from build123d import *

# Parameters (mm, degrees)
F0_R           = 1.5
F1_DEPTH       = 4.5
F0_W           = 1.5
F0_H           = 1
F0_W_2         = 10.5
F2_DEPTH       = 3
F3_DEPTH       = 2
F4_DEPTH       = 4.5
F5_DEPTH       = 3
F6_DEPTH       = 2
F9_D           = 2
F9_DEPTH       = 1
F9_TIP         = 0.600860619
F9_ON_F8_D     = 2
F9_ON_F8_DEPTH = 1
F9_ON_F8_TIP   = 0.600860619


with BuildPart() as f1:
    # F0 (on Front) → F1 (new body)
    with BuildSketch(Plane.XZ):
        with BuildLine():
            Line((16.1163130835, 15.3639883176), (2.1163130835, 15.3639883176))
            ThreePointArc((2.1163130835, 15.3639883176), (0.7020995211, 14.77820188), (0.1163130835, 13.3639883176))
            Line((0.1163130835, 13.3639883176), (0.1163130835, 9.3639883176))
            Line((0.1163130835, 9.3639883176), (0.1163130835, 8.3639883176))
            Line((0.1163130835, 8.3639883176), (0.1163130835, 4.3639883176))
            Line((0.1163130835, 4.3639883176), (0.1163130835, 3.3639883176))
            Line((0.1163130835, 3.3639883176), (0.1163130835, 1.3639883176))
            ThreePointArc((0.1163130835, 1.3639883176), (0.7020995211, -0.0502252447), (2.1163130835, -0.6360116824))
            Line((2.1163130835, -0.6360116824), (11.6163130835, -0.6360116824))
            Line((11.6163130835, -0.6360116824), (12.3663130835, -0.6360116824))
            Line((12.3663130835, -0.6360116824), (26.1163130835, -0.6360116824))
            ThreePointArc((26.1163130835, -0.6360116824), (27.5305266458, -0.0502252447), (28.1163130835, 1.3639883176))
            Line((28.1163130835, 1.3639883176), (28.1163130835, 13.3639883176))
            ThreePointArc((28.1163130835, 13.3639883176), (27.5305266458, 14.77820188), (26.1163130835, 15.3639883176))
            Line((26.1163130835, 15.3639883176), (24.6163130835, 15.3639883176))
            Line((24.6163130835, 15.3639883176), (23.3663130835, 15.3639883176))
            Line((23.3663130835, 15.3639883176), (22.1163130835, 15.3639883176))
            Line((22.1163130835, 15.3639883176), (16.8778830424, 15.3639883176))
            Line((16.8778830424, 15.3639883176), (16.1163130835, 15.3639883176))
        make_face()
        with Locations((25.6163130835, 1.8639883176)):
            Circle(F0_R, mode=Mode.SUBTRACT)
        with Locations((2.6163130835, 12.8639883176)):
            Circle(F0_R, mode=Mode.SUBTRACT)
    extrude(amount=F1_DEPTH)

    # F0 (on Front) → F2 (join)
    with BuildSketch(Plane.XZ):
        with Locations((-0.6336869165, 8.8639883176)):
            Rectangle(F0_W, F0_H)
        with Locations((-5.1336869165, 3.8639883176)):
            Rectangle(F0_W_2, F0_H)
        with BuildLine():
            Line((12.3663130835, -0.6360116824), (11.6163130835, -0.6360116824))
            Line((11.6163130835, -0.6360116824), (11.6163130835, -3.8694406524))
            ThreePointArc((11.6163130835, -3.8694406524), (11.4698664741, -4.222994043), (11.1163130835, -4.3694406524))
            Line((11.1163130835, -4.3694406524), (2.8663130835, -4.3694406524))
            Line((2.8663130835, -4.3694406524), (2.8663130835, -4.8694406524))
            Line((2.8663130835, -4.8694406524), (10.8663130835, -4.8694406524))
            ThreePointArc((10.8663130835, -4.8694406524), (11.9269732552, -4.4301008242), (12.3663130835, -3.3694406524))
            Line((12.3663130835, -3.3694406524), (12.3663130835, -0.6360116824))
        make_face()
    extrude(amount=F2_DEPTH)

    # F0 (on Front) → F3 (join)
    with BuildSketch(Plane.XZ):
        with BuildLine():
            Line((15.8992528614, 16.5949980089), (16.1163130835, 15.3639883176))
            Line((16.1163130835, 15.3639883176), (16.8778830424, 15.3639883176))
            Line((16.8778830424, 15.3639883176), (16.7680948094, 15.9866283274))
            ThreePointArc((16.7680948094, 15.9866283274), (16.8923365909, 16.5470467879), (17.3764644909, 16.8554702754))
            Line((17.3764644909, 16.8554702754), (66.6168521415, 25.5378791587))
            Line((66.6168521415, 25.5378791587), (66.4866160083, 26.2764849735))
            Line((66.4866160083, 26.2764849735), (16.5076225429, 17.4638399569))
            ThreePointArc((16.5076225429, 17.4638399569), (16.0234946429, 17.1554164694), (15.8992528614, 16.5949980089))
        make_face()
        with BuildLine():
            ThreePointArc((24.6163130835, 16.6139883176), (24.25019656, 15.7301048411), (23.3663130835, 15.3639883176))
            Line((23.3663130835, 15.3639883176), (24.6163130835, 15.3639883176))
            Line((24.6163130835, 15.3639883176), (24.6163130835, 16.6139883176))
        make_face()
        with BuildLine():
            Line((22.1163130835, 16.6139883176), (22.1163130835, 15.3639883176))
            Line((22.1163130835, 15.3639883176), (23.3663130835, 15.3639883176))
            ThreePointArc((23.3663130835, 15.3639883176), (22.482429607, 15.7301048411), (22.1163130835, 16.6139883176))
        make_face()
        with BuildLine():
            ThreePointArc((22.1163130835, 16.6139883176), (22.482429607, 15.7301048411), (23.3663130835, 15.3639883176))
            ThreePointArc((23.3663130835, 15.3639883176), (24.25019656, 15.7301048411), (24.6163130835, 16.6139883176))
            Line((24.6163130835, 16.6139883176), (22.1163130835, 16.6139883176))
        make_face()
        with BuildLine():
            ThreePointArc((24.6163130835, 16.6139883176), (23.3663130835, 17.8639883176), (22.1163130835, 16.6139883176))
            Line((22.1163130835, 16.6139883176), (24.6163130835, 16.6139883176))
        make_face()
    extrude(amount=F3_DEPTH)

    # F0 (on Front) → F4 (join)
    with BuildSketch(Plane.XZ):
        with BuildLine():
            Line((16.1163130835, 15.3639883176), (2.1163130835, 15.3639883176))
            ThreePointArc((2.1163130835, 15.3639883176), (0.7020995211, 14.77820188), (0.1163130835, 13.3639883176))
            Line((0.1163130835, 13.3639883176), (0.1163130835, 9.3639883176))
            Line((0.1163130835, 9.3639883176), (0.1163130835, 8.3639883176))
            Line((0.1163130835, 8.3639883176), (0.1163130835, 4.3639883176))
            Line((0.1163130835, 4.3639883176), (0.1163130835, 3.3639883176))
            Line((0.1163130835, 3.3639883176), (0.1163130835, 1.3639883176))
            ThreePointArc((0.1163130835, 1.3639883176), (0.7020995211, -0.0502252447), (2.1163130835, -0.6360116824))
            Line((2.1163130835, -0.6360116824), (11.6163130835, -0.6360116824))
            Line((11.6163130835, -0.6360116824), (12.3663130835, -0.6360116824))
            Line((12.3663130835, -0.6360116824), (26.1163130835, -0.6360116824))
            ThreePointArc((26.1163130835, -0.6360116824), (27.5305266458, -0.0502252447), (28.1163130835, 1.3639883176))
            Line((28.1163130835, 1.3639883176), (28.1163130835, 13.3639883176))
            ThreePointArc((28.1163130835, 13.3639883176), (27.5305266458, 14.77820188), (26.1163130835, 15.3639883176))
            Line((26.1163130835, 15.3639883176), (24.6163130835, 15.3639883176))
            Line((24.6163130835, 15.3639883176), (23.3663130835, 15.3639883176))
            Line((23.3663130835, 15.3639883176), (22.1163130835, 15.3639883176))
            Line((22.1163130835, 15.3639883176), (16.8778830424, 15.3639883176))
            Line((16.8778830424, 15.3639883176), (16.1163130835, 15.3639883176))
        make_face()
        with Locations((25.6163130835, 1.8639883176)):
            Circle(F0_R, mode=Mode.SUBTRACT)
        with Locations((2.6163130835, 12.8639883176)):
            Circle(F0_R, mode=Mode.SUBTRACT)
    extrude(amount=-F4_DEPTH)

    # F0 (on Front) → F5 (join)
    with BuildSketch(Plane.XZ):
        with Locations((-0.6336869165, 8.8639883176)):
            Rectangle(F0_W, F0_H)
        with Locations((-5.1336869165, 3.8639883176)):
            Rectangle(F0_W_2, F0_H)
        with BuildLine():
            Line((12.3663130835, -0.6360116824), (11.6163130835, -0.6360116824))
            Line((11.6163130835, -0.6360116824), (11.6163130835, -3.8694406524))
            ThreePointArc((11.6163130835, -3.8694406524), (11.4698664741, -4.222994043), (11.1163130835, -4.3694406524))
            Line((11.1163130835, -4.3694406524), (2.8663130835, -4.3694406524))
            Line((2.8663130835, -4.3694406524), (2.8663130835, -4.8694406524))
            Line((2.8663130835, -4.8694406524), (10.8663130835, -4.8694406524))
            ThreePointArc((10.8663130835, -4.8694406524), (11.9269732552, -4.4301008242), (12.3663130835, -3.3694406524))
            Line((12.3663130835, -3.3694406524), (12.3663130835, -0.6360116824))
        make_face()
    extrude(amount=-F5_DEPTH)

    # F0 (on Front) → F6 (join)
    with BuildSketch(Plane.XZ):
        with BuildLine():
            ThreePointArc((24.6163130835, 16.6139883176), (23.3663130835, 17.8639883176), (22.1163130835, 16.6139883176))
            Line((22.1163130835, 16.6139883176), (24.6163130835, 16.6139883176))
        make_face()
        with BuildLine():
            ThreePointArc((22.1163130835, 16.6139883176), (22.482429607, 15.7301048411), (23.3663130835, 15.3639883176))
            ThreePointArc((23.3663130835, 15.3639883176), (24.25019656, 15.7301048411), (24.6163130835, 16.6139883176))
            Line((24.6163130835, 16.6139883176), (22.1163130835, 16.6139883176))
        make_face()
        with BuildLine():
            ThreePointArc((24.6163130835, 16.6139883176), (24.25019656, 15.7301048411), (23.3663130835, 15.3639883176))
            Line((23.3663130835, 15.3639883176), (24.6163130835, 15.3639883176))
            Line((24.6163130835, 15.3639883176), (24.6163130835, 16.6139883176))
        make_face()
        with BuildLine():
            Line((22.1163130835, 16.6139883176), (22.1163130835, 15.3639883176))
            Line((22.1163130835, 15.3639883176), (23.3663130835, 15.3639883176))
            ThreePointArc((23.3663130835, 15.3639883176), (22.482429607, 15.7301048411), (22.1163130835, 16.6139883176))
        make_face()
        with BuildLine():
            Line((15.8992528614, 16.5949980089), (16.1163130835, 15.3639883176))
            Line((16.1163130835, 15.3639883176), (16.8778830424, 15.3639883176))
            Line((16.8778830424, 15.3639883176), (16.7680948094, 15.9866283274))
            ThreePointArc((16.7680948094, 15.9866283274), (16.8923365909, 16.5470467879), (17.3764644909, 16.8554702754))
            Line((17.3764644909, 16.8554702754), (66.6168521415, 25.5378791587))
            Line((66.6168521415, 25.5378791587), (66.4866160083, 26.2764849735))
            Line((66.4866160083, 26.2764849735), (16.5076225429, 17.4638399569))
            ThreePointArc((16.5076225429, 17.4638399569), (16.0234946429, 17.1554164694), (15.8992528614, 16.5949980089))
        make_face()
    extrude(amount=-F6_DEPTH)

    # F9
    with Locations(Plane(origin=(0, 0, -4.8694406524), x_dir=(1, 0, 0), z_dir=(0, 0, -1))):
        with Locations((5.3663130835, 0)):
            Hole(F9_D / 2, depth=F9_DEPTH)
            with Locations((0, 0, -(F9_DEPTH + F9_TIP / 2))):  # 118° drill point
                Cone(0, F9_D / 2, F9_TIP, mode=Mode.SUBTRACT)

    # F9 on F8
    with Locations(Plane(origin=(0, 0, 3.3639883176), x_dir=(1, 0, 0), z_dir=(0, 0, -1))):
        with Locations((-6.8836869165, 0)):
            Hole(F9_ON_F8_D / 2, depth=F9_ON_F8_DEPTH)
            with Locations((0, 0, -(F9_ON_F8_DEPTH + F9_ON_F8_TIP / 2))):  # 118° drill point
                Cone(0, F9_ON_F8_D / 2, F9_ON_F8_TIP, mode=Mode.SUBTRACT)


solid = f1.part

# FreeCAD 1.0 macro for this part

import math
import FreeCAD as App
import Part
import Sketcher
from FreeCAD import Vector
Q = App.Units.Quantity

doc = App.newDocument("Part")
body = doc.addObject("PartDesign::Body", "Body")

# Sketch on XZ plane
sketch1 = body.newObject("Sketcher::SketchObject", "Sketch")
sketch1.AttachmentSupport = (doc.getObject("XZ_Plane"), [""])
sketch1.MapMode = "FlatFace"
sketch1.addGeometry(Part.ArcOfCircle(Part.Circle(Vector(2.116313, 13.363988, 0), Vector(0, 0, 1), 2), math.radians(90), math.radians(180)), False)
sketch1.addGeometry(Part.LineSegment(Vector(0.116313, 13.363988, 0), Vector(0.116313, 1.363988, 0)), False)
sketch1.addGeometry(Part.ArcOfCircle(Part.Circle(Vector(2.116313, 1.363988, 0), Vector(0, 0, 1), 2), math.radians(180), math.radians(270)), False)
sketch1.addGeometry(Part.LineSegment(Vector(2.116313, -0.636012, 0), Vector(26.116313, -0.636012, 0)), False)
sketch1.addGeometry(Part.ArcOfCircle(Part.Circle(Vector(26.116313, 1.363988, 0), Vector(0, 0, 1), 2), math.radians(-90), math.radians(0)), False)
sketch1.addGeometry(Part.LineSegment(Vector(28.116313, 1.363988, 0), Vector(28.116313, 13.363988, 0)), False)
sketch1.addGeometry(Part.ArcOfCircle(Part.Circle(Vector(26.116313, 13.363988, 0), Vector(0, 0, 1), 2), math.radians(0), math.radians(90)), False)
sketch1.addGeometry(Part.LineSegment(Vector(26.116313, 15.363988, 0), Vector(2.116313, 15.363988, 0)), False)
sketch1.addGeometry(Part.Circle(Vector(25.616313, 1.863988, 0), Vector(0, 0, 1), 1.5), False)
sketch1.addGeometry(Part.Circle(Vector(2.616313, 12.863988, 0), Vector(0, 0, 1), 1.5), False)
sketch1.addConstraint(Sketcher.Constraint("Tangent", 0, 2, 1, 1))
sketch1.addConstraint(Sketcher.Constraint("Tangent", 1, 2, 2, 1))
sketch1.addConstraint(Sketcher.Constraint("Tangent", 2, 2, 3, 1))
sketch1.addConstraint(Sketcher.Constraint("Tangent", 3, 2, 4, 1))
sketch1.addConstraint(Sketcher.Constraint("Tangent", 4, 2, 5, 1))
sketch1.addConstraint(Sketcher.Constraint("Tangent", 5, 2, 6, 1))
sketch1.addConstraint(Sketcher.Constraint("Tangent", 6, 2, 7, 1))
sketch1.addConstraint(Sketcher.Constraint("Tangent", 7, 2, 0, 1))
sketch1.addConstraint(Sketcher.Constraint("Vertical", 1))
sketch1.addConstraint(Sketcher.Constraint("Horizontal", 3))
sketch1.addConstraint(Sketcher.Constraint("Vertical", 5))
sketch1.addConstraint(Sketcher.Constraint("Horizontal", 7))
sketch1.addConstraint(Sketcher.Constraint("Equal", 0, 2))
sketch1.addConstraint(Sketcher.Constraint("Equal", 2, 4))
sketch1.addConstraint(Sketcher.Constraint("Equal", 4, 6))
sketch1.addConstraint(Sketcher.Constraint("Equal", 8, 9))
sketch1.addConstraint(Sketcher.Constraint("Diameter", 8, 3.0))
sketch1.addConstraint(Sketcher.Constraint("Radius", 0, 2.0))
sketch1.addConstraint(Sketcher.Constraint("DistanceX", 3, 1, 3, 2, 24.0))
sketch1.addConstraint(Sketcher.Constraint("DistanceY", 1, 2, 1, 1, 12.0))
sketch1.addConstraint(Sketcher.Constraint("DistanceX", 9, 3, 8, 3, 23.0))
sketch1.addConstraint(Sketcher.Constraint("DistanceY", 8, 3, 9, 3, 11.0))
sketch1.addConstraint(Sketcher.Constraint("DistanceX", 8, 3, 4, 3, 0.5))
sketch1.addConstraint(Sketcher.Constraint("DistanceY", 4, 3, 8, 3, 0.5))
sketch1.addConstraint(Sketcher.Constraint("DistanceY", -1, 1, 0, 3, 13.363988))
sketch1.addConstraint(Sketcher.Constraint("DistanceX", -1, 1, 0, 3, 2.116313))
pad1 = body.newObject("PartDesign::Pad", "Pad")
pad1.Profile = sketch1
pad1.Length = 4.5

# Sketch on XZ plane
sketch2 = body.newObject("Sketcher::SketchObject", "Sketch001")
sketch2.AttachmentSupport = (doc.getObject("XZ_Plane"), [""])
sketch2.MapMode = "FlatFace"
sketch2.addGeometry(Part.LineSegment(Vector(-1.383687, 9.363988, 0), Vector(-1.383687, 8.363988, 0)), False)
sketch2.addGeometry(Part.LineSegment(Vector(-1.383687, 8.363988, 0), Vector(0.116313, 8.363988, 0)), False)
sketch2.addGeometry(Part.LineSegment(Vector(0.116313, 8.363988, 0), Vector(0.116313, 9.363988, 0)), False)
sketch2.addGeometry(Part.LineSegment(Vector(0.116313, 9.363988, 0), Vector(-1.383687, 9.363988, 0)), False)
sketch2.addGeometry(Part.LineSegment(Vector(-10.383687, 4.363988, 0), Vector(-10.383687, 3.363988, 0)), False)
sketch2.addGeometry(Part.LineSegment(Vector(-10.383687, 3.363988, 0), Vector(0.116313, 3.363988, 0)), False)
sketch2.addGeometry(Part.LineSegment(Vector(0.116313, 3.363988, 0), Vector(0.116313, 4.363988, 0)), False)
sketch2.addGeometry(Part.LineSegment(Vector(0.116313, 4.363988, 0), Vector(-10.383687, 4.363988, 0)), False)
sketch2.addGeometry(Part.LineSegment(Vector(12.366313, -0.636012, 0), Vector(11.616313, -0.636012, 0)), False)
sketch2.addGeometry(Part.LineSegment(Vector(11.616313, -0.636012, 0), Vector(11.616313, -3.869441, 0)), False)
sketch2.addGeometry(Part.ArcOfCircle(Part.Circle(Vector(11.116313, -3.869441, 0), Vector(0, 0, 1), 0.5), math.radians(-90), math.radians(0)), False)
sketch2.addGeometry(Part.LineSegment(Vector(11.116313, -4.369441, 0), Vector(2.866313, -4.369441, 0)), False)
sketch2.addGeometry(Part.LineSegment(Vector(2.866313, -4.369441, 0), Vector(2.866313, -4.869441, 0)), False)
sketch2.addGeometry(Part.LineSegment(Vector(2.866313, -4.869441, 0), Vector(10.866313, -4.869441, 0)), False)
sketch2.addGeometry(Part.ArcOfCircle(Part.Circle(Vector(10.866313, -3.369441, 0), Vector(0, 0, 1), 1.5), math.radians(-90), math.radians(0)), False)
sketch2.addGeometry(Part.LineSegment(Vector(12.366313, -3.369441, 0), Vector(12.366313, -0.636012, 0)), False)
sketch2.addConstraint(Sketcher.Constraint("Coincident", 0, 2, 1, 1))
sketch2.addConstraint(Sketcher.Constraint("Coincident", 1, 2, 2, 1))
sketch2.addConstraint(Sketcher.Constraint("Coincident", 2, 2, 3, 1))
sketch2.addConstraint(Sketcher.Constraint("Coincident", 3, 2, 0, 1))
sketch2.addConstraint(Sketcher.Constraint("Coincident", 4, 2, 5, 1))
sketch2.addConstraint(Sketcher.Constraint("Coincident", 5, 2, 6, 1))
sketch2.addConstraint(Sketcher.Constraint("Coincident", 6, 2, 7, 1))
sketch2.addConstraint(Sketcher.Constraint("Coincident", 7, 2, 4, 1))
sketch2.addConstraint(Sketcher.Constraint("Coincident", 8, 2, 9, 1))
sketch2.addConstraint(Sketcher.Constraint("Tangent", 9, 2, 10, 2))
sketch2.addConstraint(Sketcher.Constraint("Tangent", 10, 1, 11, 1))
sketch2.addConstraint(Sketcher.Constraint("Coincident", 11, 2, 12, 1))
sketch2.addConstraint(Sketcher.Constraint("Coincident", 12, 2, 13, 1))
sketch2.addConstraint(Sketcher.Constraint("Tangent", 13, 2, 14, 1))
sketch2.addConstraint(Sketcher.Constraint("Tangent", 14, 2, 15, 1))
sketch2.addConstraint(Sketcher.Constraint("Coincident", 15, 2, 8, 1))
sketch2.addConstraint(Sketcher.Constraint("Vertical", 0))
sketch2.addConstraint(Sketcher.Constraint("Horizontal", 1))
sketch2.addConstraint(Sketcher.Constraint("Vertical", 2))
sketch2.addConstraint(Sketcher.Constraint("Horizontal", 3))
sketch2.addConstraint(Sketcher.Constraint("Vertical", 4))
sketch2.addConstraint(Sketcher.Constraint("Horizontal", 5))
sketch2.addConstraint(Sketcher.Constraint("Vertical", 6))
sketch2.addConstraint(Sketcher.Constraint("Horizontal", 7))
sketch2.addConstraint(Sketcher.Constraint("Horizontal", 8))
sketch2.addConstraint(Sketcher.Constraint("Vertical", 9))
sketch2.addConstraint(Sketcher.Constraint("Horizontal", 11))
sketch2.addConstraint(Sketcher.Constraint("Vertical", 12))
sketch2.addConstraint(Sketcher.Constraint("Horizontal", 13))
sketch2.addConstraint(Sketcher.Constraint("Vertical", 15))
sketch2.addConstraint(Sketcher.Constraint("Vertical", 2, 2, 5, 2))
sketch2.addConstraint(Sketcher.Constraint("Equal", 2, 4))
sketch2.addConstraint(Sketcher.Constraint("Radius", 10, 0.5))
sketch2.addConstraint(Sketcher.Constraint("Radius", 14, 1.5))
sketch2.addConstraint(Sketcher.Constraint("DistanceX", 13, 1, 13, 2, 8.0))
sketch2.addConstraint(Sketcher.Constraint("DistanceY", 0, 2, 0, 1, 1.0))
sketch2.addConstraint(Sketcher.Constraint("DistanceX", 1, 1, 1, 2, 1.5))
sketch2.addConstraint(Sketcher.Constraint("DistanceX", 5, 1, 5, 2, 10.5))
sketch2.addConstraint(Sketcher.Constraint("DistanceY", 12, 2, 12, 1, 0.5))
sketch2.addConstraint(Sketcher.Constraint("DistanceX", 1, 2, 10, 3, 11.0))
sketch2.addConstraint(Sketcher.Constraint("DistanceY", 4, 2, 0, 2, 5.0))
sketch2.addConstraint(Sketcher.Constraint("DistanceY", 8, 2, 5, 2, 4.0))
sketch2.addConstraint(Sketcher.Constraint("DistanceX", 8, 2, 8, 1, 0.75))
sketch2.addConstraint(Sketcher.Constraint("DistanceY", 9, 2, 9, 1, 3.233429))
sketch2.addConstraint(Sketcher.Constraint("DistanceY", 10, 3, -1, 1, 3.869441))
sketch2.addConstraint(Sketcher.Constraint("DistanceX", -1, 1, 10, 3, 11.116313))
pad2 = body.newObject("PartDesign::Pad", "Pad001")
pad2.Profile = sketch2
pad2.Length = 3

# Sketch on XZ plane
sketch3 = body.newObject("Sketcher::SketchObject", "Sketch002")
sketch3.AttachmentSupport = (doc.getObject("XZ_Plane"), [""])
sketch3.MapMode = "FlatFace"
sketch3.addGeometry(Part.LineSegment(Vector(15.899253, 16.594998, 0), Vector(16.116313, 15.363988, 0)), False)
sketch3.addGeometry(Part.LineSegment(Vector(16.116313, 15.363988, 0), Vector(16.877883, 15.363988, 0)), False)
sketch3.addGeometry(Part.LineSegment(Vector(16.877883, 15.363988, 0), Vector(16.768095, 15.986628, 0)), False)
sketch3.addGeometry(Part.ArcOfCircle(Part.Circle(Vector(17.506701, 16.116864, 0), Vector(0, 0, 1), 0.75), math.radians(100), math.radians(190)), False)
sketch3.addGeometry(Part.LineSegment(Vector(17.376464, 16.85547, 0), Vector(66.616852, 25.537879, 0)), False)
sketch3.addGeometry(Part.LineSegment(Vector(66.616852, 25.537879, 0), Vector(66.486616, 26.276485, 0)), False)
sketch3.addGeometry(Part.LineSegment(Vector(66.486616, 26.276485, 0), Vector(16.507623, 17.46384, 0)), False)
sketch3.addGeometry(Part.ArcOfCircle(Part.Circle(Vector(16.637859, 16.725234, 0), Vector(0, 0, 1), 0.75), math.radians(100), math.radians(190)), False)
sketch3.addGeometry(Part.LineSegment(Vector(24.616313, 15.363988, 0), Vector(24.616313, 16.613988, 0)), False)
sketch3.addGeometry(Part.ArcOfCircle(Part.Circle(Vector(23.366313, 16.613988, 0), Vector(0, 0, 1), 1.25), math.radians(0), math.radians(180)), False)
sketch3.addGeometry(Part.LineSegment(Vector(22.116313, 16.613988, 0), Vector(22.116313, 15.363988, 0)), False)
sketch3.addGeometry(Part.LineSegment(Vector(22.116313, 15.363988, 0), Vector(24.616313, 15.363988, 0)), False)
sketch3.addConstraint(Sketcher.Constraint("Coincident", 0, 2, 1, 1))
sketch3.addConstraint(Sketcher.Constraint("Coincident", 1, 2, 2, 1))
sketch3.addConstraint(Sketcher.Constraint("Tangent", 2, 2, 3, 2))
sketch3.addConstraint(Sketcher.Constraint("Tangent", 3, 1, 4, 1))
sketch3.addConstraint(Sketcher.Constraint("Coincident", 4, 2, 5, 1))
sketch3.addConstraint(Sketcher.Constraint("Coincident", 5, 2, 6, 1))
sketch3.addConstraint(Sketcher.Constraint("Tangent", 6, 2, 7, 1))
sketch3.addConstraint(Sketcher.Constraint("Tangent", 7, 2, 0, 1))
sketch3.addConstraint(Sketcher.Constraint("Tangent", 8, 2, 9, 1))
sketch3.addConstraint(Sketcher.Constraint("Tangent", 9, 2, 10, 1))
sketch3.addConstraint(Sketcher.Constraint("Coincident", 10, 2, 11, 1))
sketch3.addConstraint(Sketcher.Constraint("Coincident", 11, 2, 8, 1))
sketch3.addConstraint(Sketcher.Constraint("Horizontal", 1))
sketch3.addConstraint(Sketcher.Constraint("Vertical", 8))
sketch3.addConstraint(Sketcher.Constraint("Vertical", 10))
sketch3.addConstraint(Sketcher.Constraint("Horizontal", 11))
sketch3.addConstraint(Sketcher.Constraint("Equal", 3, 7))
sketch3.addConstraint(Sketcher.Constraint("Parallel", 0, 2))
sketch3.addConstraint(Sketcher.Constraint("Perpendicular", 2, 4))
sketch3.addConstraint(Sketcher.Constraint("Perpendicular", 4, 5))
sketch3.addConstraint(Sketcher.Constraint("Perpendicular", 5, 6))
sketch3.addConstraint(Sketcher.Constraint("Horizontal", 1, 2, 10, 2))
sketch3.addConstraint(Sketcher.Constraint("Angle", 0, Q("-80 deg")))
sketch3.addConstraint(Sketcher.Constraint("Radius", 3, 0.75))
sketch3.addConstraint(Sketcher.Constraint("Radius", 9, 1.25))
sketch3.addConstraint(Sketcher.Constraint("Distance", 4, 50.0))
sketch3.addConstraint(Sketcher.Constraint("DistanceY", 8, 1, 8, 2, 1.25))
sketch3.addConstraint(Sketcher.Constraint("Distance", 0, 1.25))
sketch3.addConstraint(Sketcher.Constraint("Distance", 5, 0.75))
sketch3.addConstraint(Sketcher.Constraint("Distance", 6, 50.75))
sketch3.addConstraint(Sketcher.Constraint("DistanceX", 0, 2, 9, 3, 7.25))
sketch3.addConstraint(Sketcher.Constraint("DistanceY", -1, 1, 7, 2, 16.594998))
sketch3.addConstraint(Sketcher.Constraint("DistanceX", -1, 1, 3, 3, 17.506701))
pad3 = body.newObject("PartDesign::Pad", "Pad002")
pad3.Profile = sketch3
pad3.Length = 2

# Sketch on XZ plane
sketch4 = body.newObject("Sketcher::SketchObject", "Sketch003")
sketch4.AttachmentSupport = (doc.getObject("XZ_Plane"), [""])
sketch4.MapMode = "FlatFace"
sketch4.addGeometry(Part.ArcOfCircle(Part.Circle(Vector(2.116313, 13.363988, 0), Vector(0, 0, 1), 2), math.radians(90), math.radians(180)), False)
sketch4.addGeometry(Part.LineSegment(Vector(0.116313, 13.363988, 0), Vector(0.116313, 1.363988, 0)), False)
sketch4.addGeometry(Part.ArcOfCircle(Part.Circle(Vector(2.116313, 1.363988, 0), Vector(0, 0, 1), 2), math.radians(180), math.radians(270)), False)
sketch4.addGeometry(Part.LineSegment(Vector(2.116313, -0.636012, 0), Vector(26.116313, -0.636012, 0)), False)
sketch4.addGeometry(Part.ArcOfCircle(Part.Circle(Vector(26.116313, 1.363988, 0), Vector(0, 0, 1), 2), math.radians(-90), math.radians(0)), False)
sketch4.addGeometry(Part.LineSegment(Vector(28.116313, 1.363988, 0), Vector(28.116313, 13.363988, 0)), False)
sketch4.addGeometry(Part.ArcOfCircle(Part.Circle(Vector(26.116313, 13.363988, 0), Vector(0, 0, 1), 2), math.radians(0), math.radians(90)), False)
sketch4.addGeometry(Part.LineSegment(Vector(26.116313, 15.363988, 0), Vector(2.116313, 15.363988, 0)), False)
sketch4.addGeometry(Part.Circle(Vector(25.616313, 1.863988, 0), Vector(0, 0, 1), 1.5), False)
sketch4.addGeometry(Part.Circle(Vector(2.616313, 12.863988, 0), Vector(0, 0, 1), 1.5), False)
sketch4.addConstraint(Sketcher.Constraint("Tangent", 0, 2, 1, 1))
sketch4.addConstraint(Sketcher.Constraint("Tangent", 1, 2, 2, 1))
sketch4.addConstraint(Sketcher.Constraint("Tangent", 2, 2, 3, 1))
sketch4.addConstraint(Sketcher.Constraint("Tangent", 3, 2, 4, 1))
sketch4.addConstraint(Sketcher.Constraint("Tangent", 4, 2, 5, 1))
sketch4.addConstraint(Sketcher.Constraint("Tangent", 5, 2, 6, 1))
sketch4.addConstraint(Sketcher.Constraint("Tangent", 6, 2, 7, 1))
sketch4.addConstraint(Sketcher.Constraint("Tangent", 7, 2, 0, 1))
sketch4.addConstraint(Sketcher.Constraint("Vertical", 1))
sketch4.addConstraint(Sketcher.Constraint("Horizontal", 3))
sketch4.addConstraint(Sketcher.Constraint("Vertical", 5))
sketch4.addConstraint(Sketcher.Constraint("Horizontal", 7))
sketch4.addConstraint(Sketcher.Constraint("Equal", 0, 2))
sketch4.addConstraint(Sketcher.Constraint("Equal", 2, 4))
sketch4.addConstraint(Sketcher.Constraint("Equal", 4, 6))
sketch4.addConstraint(Sketcher.Constraint("Equal", 8, 9))
sketch4.addConstraint(Sketcher.Constraint("Diameter", 8, 3.0))
sketch4.addConstraint(Sketcher.Constraint("Radius", 0, 2.0))
sketch4.addConstraint(Sketcher.Constraint("DistanceX", 3, 1, 3, 2, 24.0))
sketch4.addConstraint(Sketcher.Constraint("DistanceY", 1, 2, 1, 1, 12.0))
sketch4.addConstraint(Sketcher.Constraint("DistanceX", 9, 3, 8, 3, 23.0))
sketch4.addConstraint(Sketcher.Constraint("DistanceY", 8, 3, 9, 3, 11.0))
sketch4.addConstraint(Sketcher.Constraint("DistanceX", 8, 3, 4, 3, 0.5))
sketch4.addConstraint(Sketcher.Constraint("DistanceY", 4, 3, 8, 3, 0.5))
sketch4.addConstraint(Sketcher.Constraint("DistanceY", -1, 1, 0, 3, 13.363988))
sketch4.addConstraint(Sketcher.Constraint("DistanceX", -1, 1, 0, 3, 2.116313))
pad4 = body.newObject("PartDesign::Pad", "Pad003")
pad4.Profile = sketch4
pad4.Length = 4.5
pad4.Reversed = True

# Sketch on XZ plane
sketch5 = body.newObject("Sketcher::SketchObject", "Sketch004")
sketch5.AttachmentSupport = (doc.getObject("XZ_Plane"), [""])
sketch5.MapMode = "FlatFace"
sketch5.addGeometry(Part.LineSegment(Vector(-1.383687, 9.363988, 0), Vector(-1.383687, 8.363988, 0)), False)
sketch5.addGeometry(Part.LineSegment(Vector(-1.383687, 8.363988, 0), Vector(0.116313, 8.363988, 0)), False)
sketch5.addGeometry(Part.LineSegment(Vector(0.116313, 8.363988, 0), Vector(0.116313, 9.363988, 0)), False)
sketch5.addGeometry(Part.LineSegment(Vector(0.116313, 9.363988, 0), Vector(-1.383687, 9.363988, 0)), False)
sketch5.addGeometry(Part.LineSegment(Vector(-10.383687, 4.363988, 0), Vector(-10.383687, 3.363988, 0)), False)
sketch5.addGeometry(Part.LineSegment(Vector(-10.383687, 3.363988, 0), Vector(0.116313, 3.363988, 0)), False)
sketch5.addGeometry(Part.LineSegment(Vector(0.116313, 3.363988, 0), Vector(0.116313, 4.363988, 0)), False)
sketch5.addGeometry(Part.LineSegment(Vector(0.116313, 4.363988, 0), Vector(-10.383687, 4.363988, 0)), False)
sketch5.addGeometry(Part.LineSegment(Vector(12.366313, -0.636012, 0), Vector(11.616313, -0.636012, 0)), False)
sketch5.addGeometry(Part.LineSegment(Vector(11.616313, -0.636012, 0), Vector(11.616313, -3.869441, 0)), False)
sketch5.addGeometry(Part.ArcOfCircle(Part.Circle(Vector(11.116313, -3.869441, 0), Vector(0, 0, 1), 0.5), math.radians(-90), math.radians(0)), False)
sketch5.addGeometry(Part.LineSegment(Vector(11.116313, -4.369441, 0), Vector(2.866313, -4.369441, 0)), False)
sketch5.addGeometry(Part.LineSegment(Vector(2.866313, -4.369441, 0), Vector(2.866313, -4.869441, 0)), False)
sketch5.addGeometry(Part.LineSegment(Vector(2.866313, -4.869441, 0), Vector(10.866313, -4.869441, 0)), False)
sketch5.addGeometry(Part.ArcOfCircle(Part.Circle(Vector(10.866313, -3.369441, 0), Vector(0, 0, 1), 1.5), math.radians(-90), math.radians(0)), False)
sketch5.addGeometry(Part.LineSegment(Vector(12.366313, -3.369441, 0), Vector(12.366313, -0.636012, 0)), False)
sketch5.addConstraint(Sketcher.Constraint("Coincident", 0, 2, 1, 1))
sketch5.addConstraint(Sketcher.Constraint("Coincident", 1, 2, 2, 1))
sketch5.addConstraint(Sketcher.Constraint("Coincident", 2, 2, 3, 1))
sketch5.addConstraint(Sketcher.Constraint("Coincident", 3, 2, 0, 1))
sketch5.addConstraint(Sketcher.Constraint("Coincident", 4, 2, 5, 1))
sketch5.addConstraint(Sketcher.Constraint("Coincident", 5, 2, 6, 1))
sketch5.addConstraint(Sketcher.Constraint("Coincident", 6, 2, 7, 1))
sketch5.addConstraint(Sketcher.Constraint("Coincident", 7, 2, 4, 1))
sketch5.addConstraint(Sketcher.Constraint("Coincident", 8, 2, 9, 1))
sketch5.addConstraint(Sketcher.Constraint("Tangent", 9, 2, 10, 2))
sketch5.addConstraint(Sketcher.Constraint("Tangent", 10, 1, 11, 1))
sketch5.addConstraint(Sketcher.Constraint("Coincident", 11, 2, 12, 1))
sketch5.addConstraint(Sketcher.Constraint("Coincident", 12, 2, 13, 1))
sketch5.addConstraint(Sketcher.Constraint("Tangent", 13, 2, 14, 1))
sketch5.addConstraint(Sketcher.Constraint("Tangent", 14, 2, 15, 1))
sketch5.addConstraint(Sketcher.Constraint("Coincident", 15, 2, 8, 1))
sketch5.addConstraint(Sketcher.Constraint("Vertical", 0))
sketch5.addConstraint(Sketcher.Constraint("Horizontal", 1))
sketch5.addConstraint(Sketcher.Constraint("Vertical", 2))
sketch5.addConstraint(Sketcher.Constraint("Horizontal", 3))
sketch5.addConstraint(Sketcher.Constraint("Vertical", 4))
sketch5.addConstraint(Sketcher.Constraint("Horizontal", 5))
sketch5.addConstraint(Sketcher.Constraint("Vertical", 6))
sketch5.addConstraint(Sketcher.Constraint("Horizontal", 7))
sketch5.addConstraint(Sketcher.Constraint("Horizontal", 8))
sketch5.addConstraint(Sketcher.Constraint("Vertical", 9))
sketch5.addConstraint(Sketcher.Constraint("Horizontal", 11))
sketch5.addConstraint(Sketcher.Constraint("Vertical", 12))
sketch5.addConstraint(Sketcher.Constraint("Horizontal", 13))
sketch5.addConstraint(Sketcher.Constraint("Vertical", 15))
sketch5.addConstraint(Sketcher.Constraint("Vertical", 2, 2, 5, 2))
sketch5.addConstraint(Sketcher.Constraint("Equal", 2, 4))
sketch5.addConstraint(Sketcher.Constraint("Radius", 10, 0.5))
sketch5.addConstraint(Sketcher.Constraint("Radius", 14, 1.5))
sketch5.addConstraint(Sketcher.Constraint("DistanceX", 13, 1, 13, 2, 8.0))
sketch5.addConstraint(Sketcher.Constraint("DistanceY", 0, 2, 0, 1, 1.0))
sketch5.addConstraint(Sketcher.Constraint("DistanceX", 1, 1, 1, 2, 1.5))
sketch5.addConstraint(Sketcher.Constraint("DistanceX", 5, 1, 5, 2, 10.5))
sketch5.addConstraint(Sketcher.Constraint("DistanceY", 12, 2, 12, 1, 0.5))
sketch5.addConstraint(Sketcher.Constraint("DistanceX", 1, 2, 10, 3, 11.0))
sketch5.addConstraint(Sketcher.Constraint("DistanceY", 4, 2, 0, 2, 5.0))
sketch5.addConstraint(Sketcher.Constraint("DistanceY", 8, 2, 5, 2, 4.0))
sketch5.addConstraint(Sketcher.Constraint("DistanceX", 8, 2, 8, 1, 0.75))
sketch5.addConstraint(Sketcher.Constraint("DistanceY", 9, 2, 9, 1, 3.233429))
sketch5.addConstraint(Sketcher.Constraint("DistanceY", 10, 3, -1, 1, 3.869441))
sketch5.addConstraint(Sketcher.Constraint("DistanceX", -1, 1, 10, 3, 11.116313))
pad5 = body.newObject("PartDesign::Pad", "Pad004")
pad5.Profile = sketch5
pad5.Length = 3
pad5.Reversed = True

# Sketch on XZ plane
sketch6 = body.newObject("Sketcher::SketchObject", "Sketch005")
sketch6.AttachmentSupport = (doc.getObject("XZ_Plane"), [""])
sketch6.MapMode = "FlatFace"
sketch6.addGeometry(Part.ArcOfCircle(Part.Circle(Vector(23.366313, 16.613988, 0), Vector(0, 0, 1), 1.25), math.radians(0), math.radians(180)), False)
sketch6.addGeometry(Part.LineSegment(Vector(22.116313, 16.613988, 0), Vector(22.116313, 15.363988, 0)), False)
sketch6.addGeometry(Part.LineSegment(Vector(22.116313, 15.363988, 0), Vector(24.616313, 15.363988, 0)), False)
sketch6.addGeometry(Part.LineSegment(Vector(24.616313, 15.363988, 0), Vector(24.616313, 16.613988, 0)), False)
sketch6.addGeometry(Part.LineSegment(Vector(15.899253, 16.594998, 0), Vector(16.116313, 15.363988, 0)), False)
sketch6.addGeometry(Part.LineSegment(Vector(16.116313, 15.363988, 0), Vector(16.877883, 15.363988, 0)), False)
sketch6.addGeometry(Part.LineSegment(Vector(16.877883, 15.363988, 0), Vector(16.768095, 15.986628, 0)), False)
sketch6.addGeometry(Part.ArcOfCircle(Part.Circle(Vector(17.506701, 16.116864, 0), Vector(0, 0, 1), 0.75), math.radians(100), math.radians(190)), False)
sketch6.addGeometry(Part.LineSegment(Vector(17.376464, 16.85547, 0), Vector(66.616852, 25.537879, 0)), False)
sketch6.addGeometry(Part.LineSegment(Vector(66.616852, 25.537879, 0), Vector(66.486616, 26.276485, 0)), False)
sketch6.addGeometry(Part.LineSegment(Vector(66.486616, 26.276485, 0), Vector(16.507623, 17.46384, 0)), False)
sketch6.addGeometry(Part.ArcOfCircle(Part.Circle(Vector(16.637859, 16.725234, 0), Vector(0, 0, 1), 0.75), math.radians(100), math.radians(190)), False)
sketch6.addConstraint(Sketcher.Constraint("Tangent", 0, 2, 1, 1))
sketch6.addConstraint(Sketcher.Constraint("Coincident", 1, 2, 2, 1))
sketch6.addConstraint(Sketcher.Constraint("Coincident", 2, 2, 3, 1))
sketch6.addConstraint(Sketcher.Constraint("Tangent", 3, 2, 0, 1))
sketch6.addConstraint(Sketcher.Constraint("Coincident", 4, 2, 5, 1))
sketch6.addConstraint(Sketcher.Constraint("Coincident", 5, 2, 6, 1))
sketch6.addConstraint(Sketcher.Constraint("Tangent", 6, 2, 7, 2))
sketch6.addConstraint(Sketcher.Constraint("Tangent", 7, 1, 8, 1))
sketch6.addConstraint(Sketcher.Constraint("Coincident", 8, 2, 9, 1))
sketch6.addConstraint(Sketcher.Constraint("Coincident", 9, 2, 10, 1))
sketch6.addConstraint(Sketcher.Constraint("Tangent", 10, 2, 11, 1))
sketch6.addConstraint(Sketcher.Constraint("Tangent", 11, 2, 4, 1))
sketch6.addConstraint(Sketcher.Constraint("Vertical", 1))
sketch6.addConstraint(Sketcher.Constraint("Horizontal", 2))
sketch6.addConstraint(Sketcher.Constraint("Vertical", 3))
sketch6.addConstraint(Sketcher.Constraint("Horizontal", 5))
sketch6.addConstraint(Sketcher.Constraint("Equal", 7, 11))
sketch6.addConstraint(Sketcher.Constraint("Parallel", 4, 6))
sketch6.addConstraint(Sketcher.Constraint("Perpendicular", 6, 8))
sketch6.addConstraint(Sketcher.Constraint("Perpendicular", 8, 9))
sketch6.addConstraint(Sketcher.Constraint("Perpendicular", 9, 10))
sketch6.addConstraint(Sketcher.Constraint("Horizontal", 2, 2, 4, 2))
sketch6.addConstraint(Sketcher.Constraint("Angle", 4, Q("-80 deg")))
sketch6.addConstraint(Sketcher.Constraint("Radius", 0, 1.25))
sketch6.addConstraint(Sketcher.Constraint("Radius", 7, 0.75))
sketch6.addConstraint(Sketcher.Constraint("Distance", 8, 50.0))
sketch6.addConstraint(Sketcher.Constraint("DistanceX", 4, 2, 1, 2, 6.0))
sketch6.addConstraint(Sketcher.Constraint("DistanceY", 1, 2, 1, 1, 1.25))
sketch6.addConstraint(Sketcher.Constraint("Distance", 4, 1.25))
sketch6.addConstraint(Sketcher.Constraint("Distance", 9, 0.75))
sketch6.addConstraint(Sketcher.Constraint("Distance", 10, 50.75))
sketch6.addConstraint(Sketcher.Constraint("DistanceY", -1, 1, 11, 2, 16.594998))
sketch6.addConstraint(Sketcher.Constraint("DistanceX", -1, 1, 7, 3, 17.506701))
pad6 = body.newObject("PartDesign::Pad", "Pad005")
pad6.Profile = sketch6
pad6.Length = 2
pad6.Reversed = True

# Sketch on XY plane
sketch7 = body.newObject("Sketcher::SketchObject", "Sketch006")
sketch7.AttachmentSupport = (doc.getObject("XY_Plane"), [""])
sketch7.MapMode = "FlatFace"
sketch7.AttachmentOffset = App.Placement(Vector(0, 0, -4.869441), App.Rotation())
sketch7.addGeometry(Part.Circle(Vector(5.366313, 0, 0), Vector(0, 0, 1), 1), False)
sketch7.addConstraint(Sketcher.Constraint("PointOnObject", 0, 3, -1))
sketch7.addConstraint(Sketcher.Constraint("Diameter", 0, 2.0))
sketch7.addConstraint(Sketcher.Constraint("DistanceX", -1, 1, 0, 3, 5.366313))
doc.recompute()
hole = body.newObject("PartDesign::Hole", "Hole")
hole.Profile = sketch7
hole.ThreadType = "None"
hole.Diameter = 2
hole.DepthType = "Dimension"
hole.Depth = 1
hole.DrillPoint = "Angled"
hole.DrillPointAngle = 118
hole.Reversed = True

# Sketch on XY plane
sketch8 = body.newObject("Sketcher::SketchObject", "Sketch007")
sketch8.AttachmentSupport = (doc.getObject("XY_Plane"), [""])
sketch8.MapMode = "FlatFace"
sketch8.AttachmentOffset = App.Placement(Vector(0, 0, 3.363988), App.Rotation())
sketch8.addGeometry(Part.Circle(Vector(-6.883687, 0, 0), Vector(0, 0, 1), 1), False)
sketch8.addConstraint(Sketcher.Constraint("PointOnObject", 0, 3, -1))
sketch8.addConstraint(Sketcher.Constraint("Diameter", 0, 2.0))
sketch8.addConstraint(Sketcher.Constraint("DistanceX", 0, 3, -1, 1, 6.883687))
doc.recompute()
hole2 = body.newObject("PartDesign::Hole", "Hole001")
hole2.Profile = sketch8
hole2.ThreadType = "None"
hole2.Diameter = 2
hole2.DepthType = "Dimension"
hole2.Depth = 1
hole2.DrillPoint = "Angled"
hole2.DrillPointAngle = 118
hole2.Reversed = True

doc.recompute()
